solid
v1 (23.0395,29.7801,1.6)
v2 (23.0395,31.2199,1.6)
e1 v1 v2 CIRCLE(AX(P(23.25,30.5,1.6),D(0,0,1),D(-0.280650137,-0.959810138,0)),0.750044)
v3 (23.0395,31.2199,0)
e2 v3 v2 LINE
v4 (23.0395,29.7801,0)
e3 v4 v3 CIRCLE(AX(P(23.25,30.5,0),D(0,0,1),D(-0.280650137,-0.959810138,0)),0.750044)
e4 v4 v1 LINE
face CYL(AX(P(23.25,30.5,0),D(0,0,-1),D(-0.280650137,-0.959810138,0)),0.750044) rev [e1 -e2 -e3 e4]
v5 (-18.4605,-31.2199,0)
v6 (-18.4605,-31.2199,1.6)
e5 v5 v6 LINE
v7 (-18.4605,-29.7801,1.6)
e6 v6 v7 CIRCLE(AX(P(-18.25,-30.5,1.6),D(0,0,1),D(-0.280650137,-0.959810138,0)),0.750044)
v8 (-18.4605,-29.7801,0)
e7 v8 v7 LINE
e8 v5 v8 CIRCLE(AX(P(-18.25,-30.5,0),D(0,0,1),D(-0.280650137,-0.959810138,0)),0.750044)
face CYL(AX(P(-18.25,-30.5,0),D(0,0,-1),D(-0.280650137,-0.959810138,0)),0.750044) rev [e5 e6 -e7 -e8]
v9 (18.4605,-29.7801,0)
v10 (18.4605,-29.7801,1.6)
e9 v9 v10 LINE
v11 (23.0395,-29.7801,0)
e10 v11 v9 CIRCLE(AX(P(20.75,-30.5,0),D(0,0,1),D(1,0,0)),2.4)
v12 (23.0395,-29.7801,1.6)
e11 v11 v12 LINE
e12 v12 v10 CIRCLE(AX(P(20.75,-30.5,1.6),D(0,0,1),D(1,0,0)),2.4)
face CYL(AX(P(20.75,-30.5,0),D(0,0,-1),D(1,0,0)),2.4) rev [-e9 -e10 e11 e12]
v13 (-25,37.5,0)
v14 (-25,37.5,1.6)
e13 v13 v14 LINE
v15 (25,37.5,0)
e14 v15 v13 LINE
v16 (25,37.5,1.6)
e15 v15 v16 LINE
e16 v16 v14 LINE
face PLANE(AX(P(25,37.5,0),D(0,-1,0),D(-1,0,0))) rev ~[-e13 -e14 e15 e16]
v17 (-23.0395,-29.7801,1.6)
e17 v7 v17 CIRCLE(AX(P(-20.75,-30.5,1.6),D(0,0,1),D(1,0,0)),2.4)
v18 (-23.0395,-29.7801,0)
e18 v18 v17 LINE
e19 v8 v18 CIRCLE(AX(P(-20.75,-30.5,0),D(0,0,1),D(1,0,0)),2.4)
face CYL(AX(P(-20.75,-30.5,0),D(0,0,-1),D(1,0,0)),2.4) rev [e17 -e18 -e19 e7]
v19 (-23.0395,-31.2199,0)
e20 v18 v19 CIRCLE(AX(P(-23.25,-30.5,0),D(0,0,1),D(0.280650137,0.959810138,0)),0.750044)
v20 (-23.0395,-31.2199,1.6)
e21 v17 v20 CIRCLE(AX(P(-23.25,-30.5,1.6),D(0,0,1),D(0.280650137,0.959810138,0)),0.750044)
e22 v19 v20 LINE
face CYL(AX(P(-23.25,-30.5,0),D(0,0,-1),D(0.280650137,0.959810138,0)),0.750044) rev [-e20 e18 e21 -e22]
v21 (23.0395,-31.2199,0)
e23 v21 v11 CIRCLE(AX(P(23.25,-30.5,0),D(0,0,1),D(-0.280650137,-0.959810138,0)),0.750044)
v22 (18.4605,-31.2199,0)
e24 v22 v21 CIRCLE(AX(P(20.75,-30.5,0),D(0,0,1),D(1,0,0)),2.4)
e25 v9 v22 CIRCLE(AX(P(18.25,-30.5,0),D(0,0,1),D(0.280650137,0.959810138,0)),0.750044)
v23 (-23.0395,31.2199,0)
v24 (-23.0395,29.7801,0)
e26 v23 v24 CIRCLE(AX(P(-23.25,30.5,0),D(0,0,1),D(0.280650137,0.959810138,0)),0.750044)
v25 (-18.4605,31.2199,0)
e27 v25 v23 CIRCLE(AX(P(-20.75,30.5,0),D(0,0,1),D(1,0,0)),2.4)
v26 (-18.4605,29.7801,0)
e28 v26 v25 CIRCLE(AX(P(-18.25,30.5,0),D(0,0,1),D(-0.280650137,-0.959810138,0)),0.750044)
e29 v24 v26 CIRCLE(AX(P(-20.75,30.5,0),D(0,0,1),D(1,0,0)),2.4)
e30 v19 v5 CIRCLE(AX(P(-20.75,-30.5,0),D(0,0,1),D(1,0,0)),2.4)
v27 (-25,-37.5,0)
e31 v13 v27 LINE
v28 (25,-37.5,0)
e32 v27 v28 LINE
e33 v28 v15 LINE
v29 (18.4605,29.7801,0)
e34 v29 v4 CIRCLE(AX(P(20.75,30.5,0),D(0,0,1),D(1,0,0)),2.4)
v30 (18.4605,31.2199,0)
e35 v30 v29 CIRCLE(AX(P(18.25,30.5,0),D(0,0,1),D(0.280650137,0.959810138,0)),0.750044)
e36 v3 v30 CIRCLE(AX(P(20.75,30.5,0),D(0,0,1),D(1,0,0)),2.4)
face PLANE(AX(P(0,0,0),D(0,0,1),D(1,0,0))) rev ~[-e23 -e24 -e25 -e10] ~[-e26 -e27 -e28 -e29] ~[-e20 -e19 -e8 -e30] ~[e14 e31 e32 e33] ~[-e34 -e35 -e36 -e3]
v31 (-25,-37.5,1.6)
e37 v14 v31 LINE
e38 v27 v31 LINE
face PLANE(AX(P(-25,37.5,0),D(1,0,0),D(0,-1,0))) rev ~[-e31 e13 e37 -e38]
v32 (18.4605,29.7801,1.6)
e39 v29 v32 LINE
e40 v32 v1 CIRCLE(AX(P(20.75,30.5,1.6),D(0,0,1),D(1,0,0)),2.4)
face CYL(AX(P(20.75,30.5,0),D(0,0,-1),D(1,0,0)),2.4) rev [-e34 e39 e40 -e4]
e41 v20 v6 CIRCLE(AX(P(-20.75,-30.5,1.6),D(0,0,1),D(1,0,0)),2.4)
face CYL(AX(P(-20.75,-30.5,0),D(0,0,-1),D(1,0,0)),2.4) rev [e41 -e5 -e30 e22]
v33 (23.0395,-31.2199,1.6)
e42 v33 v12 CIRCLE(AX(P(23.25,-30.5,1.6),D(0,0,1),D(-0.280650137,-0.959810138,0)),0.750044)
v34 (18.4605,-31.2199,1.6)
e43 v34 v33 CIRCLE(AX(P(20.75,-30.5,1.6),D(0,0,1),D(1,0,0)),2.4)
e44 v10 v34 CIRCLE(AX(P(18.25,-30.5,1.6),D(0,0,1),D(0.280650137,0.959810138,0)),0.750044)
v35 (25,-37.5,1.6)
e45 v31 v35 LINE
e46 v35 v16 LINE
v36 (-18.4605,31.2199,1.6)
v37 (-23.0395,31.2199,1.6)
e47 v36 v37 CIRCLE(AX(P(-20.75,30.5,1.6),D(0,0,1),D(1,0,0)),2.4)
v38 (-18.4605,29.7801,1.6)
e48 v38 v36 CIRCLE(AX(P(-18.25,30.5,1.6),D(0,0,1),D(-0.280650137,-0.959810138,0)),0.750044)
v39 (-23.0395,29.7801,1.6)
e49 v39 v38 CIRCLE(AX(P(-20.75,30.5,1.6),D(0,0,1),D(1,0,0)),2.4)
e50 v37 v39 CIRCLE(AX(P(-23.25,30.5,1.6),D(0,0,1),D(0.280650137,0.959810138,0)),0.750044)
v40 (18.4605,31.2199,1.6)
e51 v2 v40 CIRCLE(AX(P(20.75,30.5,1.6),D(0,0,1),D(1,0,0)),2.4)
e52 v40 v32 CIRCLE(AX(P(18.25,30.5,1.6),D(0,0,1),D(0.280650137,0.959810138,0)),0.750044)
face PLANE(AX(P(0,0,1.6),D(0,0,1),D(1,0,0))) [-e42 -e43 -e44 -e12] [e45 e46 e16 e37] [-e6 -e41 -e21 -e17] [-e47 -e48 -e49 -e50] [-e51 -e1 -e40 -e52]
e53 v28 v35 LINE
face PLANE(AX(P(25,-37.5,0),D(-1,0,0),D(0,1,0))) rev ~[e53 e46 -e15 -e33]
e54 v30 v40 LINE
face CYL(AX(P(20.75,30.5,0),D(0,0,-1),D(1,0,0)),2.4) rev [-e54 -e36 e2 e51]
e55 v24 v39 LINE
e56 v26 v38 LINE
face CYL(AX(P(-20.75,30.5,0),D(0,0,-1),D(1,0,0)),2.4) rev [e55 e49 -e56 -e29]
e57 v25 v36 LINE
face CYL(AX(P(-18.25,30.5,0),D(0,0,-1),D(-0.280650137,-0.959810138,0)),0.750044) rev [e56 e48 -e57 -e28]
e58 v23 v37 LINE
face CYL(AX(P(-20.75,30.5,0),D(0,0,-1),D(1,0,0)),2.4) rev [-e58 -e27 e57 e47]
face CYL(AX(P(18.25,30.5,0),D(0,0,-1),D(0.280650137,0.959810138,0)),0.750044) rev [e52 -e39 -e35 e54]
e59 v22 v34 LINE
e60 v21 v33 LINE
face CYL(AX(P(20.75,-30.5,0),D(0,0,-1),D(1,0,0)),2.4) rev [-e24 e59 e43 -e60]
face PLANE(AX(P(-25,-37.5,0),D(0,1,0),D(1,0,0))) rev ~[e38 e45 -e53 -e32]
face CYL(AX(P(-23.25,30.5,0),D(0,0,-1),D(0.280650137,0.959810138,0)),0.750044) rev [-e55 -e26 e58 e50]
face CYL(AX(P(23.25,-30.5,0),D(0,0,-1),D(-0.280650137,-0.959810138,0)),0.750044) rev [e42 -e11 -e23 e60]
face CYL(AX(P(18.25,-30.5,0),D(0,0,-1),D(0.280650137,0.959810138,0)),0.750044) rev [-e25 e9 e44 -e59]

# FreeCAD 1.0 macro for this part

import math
import FreeCAD as App
import Part
import Sketcher
Q = App.Units.Quantity


def add_polygon(sketch, points):
    """Adds a closed chain of lines whose ends are joined by coincident constraints."""
    first, n = sketch.GeometryCount, len(points)
    for a, b in zip(points, points[1:] + points[:1]):
        sketch.addGeometry(Part.LineSegment(App.Vector(*a, 0), App.Vector(*b, 0)), False)
    for i in range(n):
        sketch.addConstraint(Sketcher.Constraint("Coincident", first + i, 2, first + (i + 1) % n, 1))

doc = App.newDocument("Part")
body = doc.addObject("PartDesign::Body", "Body")

# Sketch on XY plane
sketch1 = body.newObject("Sketcher::SketchObject", "Sketch")
sketch1.AttachmentSupport = (doc.getObject("XY_Plane"), [""])
sketch1.MapMode = "FlatFace"
add_polygon(sketch1, [(25, -37.5), (25, 37.5), (-25, 37.5), (-25, -37.5)])  # lines 0-3
sketch1.addGeometry(Part.ArcOfCircle(Part.Circle(App.Vector(-20.8, -30.5, 0), App.Vector(0, 0, 1), 2.4), math.radians(17), math.radians(163)), False)  # 4
sketch1.addGeometry(Part.ArcOfCircle(Part.Circle(App.Vector(-18.2, -30.5, 0), App.Vector(0, 0, 1), 0.8), math.radians(-106), math.radians(106)), False)  # 5
sketch1.addGeometry(Part.ArcOfCircle(Part.Circle(App.Vector(-20.8, -30.5, 0), App.Vector(0, 0, 1), 2.4), math.radians(-163), math.radians(-17)), False)  # 6
sketch1.addGeometry(Part.ArcOfCircle(Part.Circle(App.Vector(-23.2, -30.5, 0), App.Vector(0, 0, 1), 0.8), math.radians(74), math.radians(286)), False)  # 7
sketch1.addGeometry(Part.ArcOfCircle(Part.Circle(App.Vector(20.8, -30.5, 0), App.Vector(0, 0, 1), 2.4), math.radians(17), math.radians(163)), False)  # 8
sketch1.addGeometry(Part.ArcOfCircle(Part.Circle(App.Vector(23.2, -30.5, 0), App.Vector(0, 0, 1), 0.8), math.radians(-106), math.radians(106)), False)  # 9
sketch1.addGeometry(Part.ArcOfCircle(Part.Circle(App.Vector(20.8, -30.5, 0), App.Vector(0, 0, 1), 2.4), math.radians(-163), math.radians(-17)), False)  # 10
sketch1.addGeometry(Part.ArcOfCircle(Part.Circle(App.Vector(18.2, -30.5, 0), App.Vector(0, 0, 1), 0.8), math.radians(74), math.radians(286)), False)  # 11
sketch1.addGeometry(Part.ArcOfCircle(Part.Circle(App.Vector(-20.8, 30.5, 0), App.Vector(0, 0, 1), 2.4), math.radians(17), math.radians(163)), False)  # 12
sketch1.addGeometry(Part.ArcOfCircle(Part.Circle(App.Vector(-18.2, 30.5, 0), App.Vector(0, 0, 1), 0.8), math.radians(-106), math.radians(106)), False)  # 13
sketch1.addGeometry(Part.ArcOfCircle(Part.Circle(App.Vector(-20.8, 30.5, 0), App.Vector(0, 0, 1), 2.4), math.radians(-163), math.radians(-17)), False)  # 14
sketch1.addGeometry(Part.ArcOfCircle(Part.Circle(App.Vector(-23.2, 30.5, 0), App.Vector(0, 0, 1), 0.8), math.radians(74), math.radians(286)), False)  # 15
sketch1.addGeometry(Part.ArcOfCircle(Part.Circle(App.Vector(20.8, 30.5, 0), App.Vector(0, 0, 1), 2.4), math.radians(17), math.radians(163)), False)  # 16
sketch1.addGeometry(Part.ArcOfCircle(Part.Circle(App.Vector(23.2, 30.5, 0), App.Vector(0, 0, 1), 0.8), math.radians(-106), math.radians(106)), False)  # 17
sketch1.addGeometry(Part.ArcOfCircle(Part.Circle(App.Vector(20.8, 30.5, 0), App.Vector(0, 0, 1), 2.4), math.radians(-163), math.radians(-17)), False)  # 18
sketch1.addGeometry(Part.ArcOfCircle(Part.Circle(App.Vector(18.2, 30.5, 0), App.Vector(0, 0, 1), 0.8), math.radians(74), math.radians(286)), False)  # 19
sketch1.addConstraint(Sketcher.Constraint("Coincident", 4, 1, 5, 2))
sketch1.addConstraint(Sketcher.Constraint("Coincident", 5, 1, 6, 2))
sketch1.addConstraint(Sketcher.Constraint("Coincident", 6, 1, 7, 2))
sketch1.addConstraint(Sketcher.Constraint("Coincident", 7, 1, 4, 2))
sketch1.addConstraint(Sketcher.Constraint("Coincident", 8, 1, 9, 2))
sketch1.addConstraint(Sketcher.Constraint("Coincident", 9, 1, 10, 2))
sketch1.addConstraint(Sketcher.Constraint("Coincident", 10, 1, 11, 2))
sketch1.addConstraint(Sketcher.Constraint("Coincident", 11, 1, 8, 2))
sketch1.addConstraint(Sketcher.Constraint("Coincident", 12, 1, 13, 2))
sketch1.addConstraint(Sketcher.Constraint("Coincident", 13, 1, 14, 2))
sketch1.addConstraint(Sketcher.Constraint("Coincident", 14, 1, 15, 2))
sketch1.addConstraint(Sketcher.Constraint("Coincident", 15, 1, 12, 2))
sketch1.addConstraint(Sketcher.Constraint("Coincident", 16, 1, 17, 2))
sketch1.addConstraint(Sketcher.Constraint("Coincident", 17, 1, 18, 2))
sketch1.addConstraint(Sketcher.Constraint("Coincident", 18, 1, 19, 2))
sketch1.addConstraint(Sketcher.Constraint("Coincident", 19, 1, 16, 2))
sketch1.addConstraint(Sketcher.Constraint("Vertical", 0))
sketch1.addConstraint(Sketcher.Constraint("Horizontal", 1))
sketch1.addConstraint(Sketcher.Constraint("Vertical", 2))
sketch1.addConstraint(Sketcher.Constraint("Horizontal", 3))
sketch1.addConstraint(Sketcher.Constraint("Coincident", 6, 3, 4, 3))
sketch1.addConstraint(Sketcher.Constraint("Coincident", 10, 3, 8, 3))
sketch1.addConstraint(Sketcher.Constraint("Coincident", 14, 3, 12, 3))
sketch1.addConstraint(Sketcher.Constraint("Coincident", 18, 3, 16, 3))
sketch1.addConstraint(Sketcher.Constraint("Equal", 4, 6))
sketch1.addConstraint(Sketcher.Constraint("Equal", 5, 7))
sketch1.addConstraint(Sketcher.Constraint("Equal", 6, 8))
sketch1.addConstraint(Sketcher.Constraint("Equal", 7, 9))
sketch1.addConstraint(Sketcher.Constraint("Equal", 8, 10))
sketch1.addConstraint(Sketcher.Constraint("Equal", 9, 11))
sketch1.addConstraint(Sketcher.Constraint("Equal", 10, 12))
sketch1.addConstraint(Sketcher.Constraint("Equal", 11, 13))
sketch1.addConstraint(Sketcher.Constraint("Equal", 12, 14))
sketch1.addConstraint(Sketcher.Constraint("Equal", 13, 15))
sketch1.addConstraint(Sketcher.Constraint("Equal", 14, 16))
sketch1.addConstraint(Sketcher.Constraint("Equal", 15, 17))
sketch1.addConstraint(Sketcher.Constraint("Equal", 16, 18))
sketch1.addConstraint(Sketcher.Constraint("Equal", 17, 19))
sketch1.addConstraint(Sketcher.Constraint("Symmetric", 8, 3, 12, 3, -1, 1))
sketch1.addConstraint(Sketcher.Constraint("Symmetric", 11, 3, 13, 3, -1, 1))
sketch1.addConstraint(Sketcher.Constraint("Symmetric", 9, 3, 15, 3, -1, 1))
sketch1.addConstraint(Sketcher.Constraint("Symmetric", 4, 3, 16, 3, -1, 1))
sketch1.addConstraint(Sketcher.Constraint("Symmetric", 7, 3, 17, 3, -1, 1))
sketch1.addConstraint(Sketcher.Constraint("Symmetric", 5, 3, 19, 3, -1, 1))
sketch1.addConstraint(Sketcher.Constraint("Symmetric", 0, 2, 2, 2, -1, 1))
sketch1.addConstraint(Sketcher.Constraint("Symmetric", 4, 3, 8, 3, -2))
sketch1.addConstraint(Sketcher.Constraint("Symmetric", 7, 3, 9, 3, -2))
sketch1.addConstraint(Sketcher.Constraint("Symmetric", 5, 3, 11, 3, -2))
sketch1.addConstraint(Sketcher.Constraint("Horizontal", 4, 3, 5, 3))
sketch1.addConstraint(Sketcher.Constraint("Horizontal", 6, 3, 7, 3))
sketch1.addConstraint(Sketcher.Constraint("Horizontal", 5, 1, 6, 1))
sketch1.addConstraint(Sketcher.Constraint("Radius", 4, Q("2.4 mm")))
sketch1.addConstraint(Sketcher.Constraint("DistanceX", 1, 2, 1, 1, Q("50 mm")))
sketch1.addConstraint(Sketcher.Constraint("DistanceY", 0, 1, 0, 2, Q("75 mm")))
sketch1.addConstraint(Sketcher.Constraint("Radius", 5, Q("0.75 mm")))
sketch1.addConstraint(Sketcher.Constraint("DistanceY", 4, 3, 12, 3, Q("61 mm")))
sketch1.addConstraint(Sketcher.Constraint("DistanceX", 4, 3, 8, 3, Q("41.5 mm")))
sketch1.addConstraint(Sketcher.Constraint("DistanceX", 7, 3, 5, 3, Q("5 mm")))
pad1 = body.newObject("PartDesign::Pad", "Pad")
pad1.Profile = sketch1
pad1.Length = 1.6

doc.recompute()
